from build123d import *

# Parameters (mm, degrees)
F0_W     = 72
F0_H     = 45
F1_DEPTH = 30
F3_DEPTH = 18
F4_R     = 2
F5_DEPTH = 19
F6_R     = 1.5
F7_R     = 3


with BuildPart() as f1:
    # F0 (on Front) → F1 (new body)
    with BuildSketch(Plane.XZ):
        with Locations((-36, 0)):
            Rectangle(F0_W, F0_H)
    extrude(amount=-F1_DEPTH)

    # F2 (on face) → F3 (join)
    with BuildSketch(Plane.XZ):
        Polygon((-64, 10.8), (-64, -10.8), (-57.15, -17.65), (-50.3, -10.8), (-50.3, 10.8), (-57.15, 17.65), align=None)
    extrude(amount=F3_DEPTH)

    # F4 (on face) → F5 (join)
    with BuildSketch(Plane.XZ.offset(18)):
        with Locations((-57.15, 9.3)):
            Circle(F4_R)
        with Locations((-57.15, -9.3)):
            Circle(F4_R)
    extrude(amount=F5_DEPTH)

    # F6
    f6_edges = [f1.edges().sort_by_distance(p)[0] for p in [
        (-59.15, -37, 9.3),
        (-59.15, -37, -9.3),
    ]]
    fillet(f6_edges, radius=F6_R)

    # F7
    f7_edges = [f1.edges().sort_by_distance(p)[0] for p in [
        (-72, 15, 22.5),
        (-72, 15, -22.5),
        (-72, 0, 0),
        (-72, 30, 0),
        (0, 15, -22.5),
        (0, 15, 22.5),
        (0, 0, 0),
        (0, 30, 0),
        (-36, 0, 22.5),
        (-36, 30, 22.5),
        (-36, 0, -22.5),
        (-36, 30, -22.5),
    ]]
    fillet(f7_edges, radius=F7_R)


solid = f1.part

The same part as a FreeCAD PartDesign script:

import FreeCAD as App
import Part
import Sketcher

V = App.Vector
Q = App.Units.Quantity


def edges_at(feature, points):
    """Names of the edges that pass closest to the given points."""
    edges = feature.Shape.Edges
    near = lambda p: min(range(len(edges)), key=lambda i: edges[i].distToShape(Part.Vertex(*p))[0])
    return sorted({f"Edge{near(p) + 1}" for p in points})


def add_polygon(sketch, points):
    """Adds a closed chain of lines whose ends are joined by coincident constraints."""
    first, n = sketch.GeometryCount, len(points)
    for a, b in zip(points, points[1:] + points[:1]):
        sketch.addGeometry(Part.LineSegment(App.Vector(*a, 0), App.Vector(*b, 0)), False)
    for i in range(n):
        sketch.addConstraint(Sketcher.Constraint("Coincident", first + i, 2, first + (i + 1) % n, 1))

doc = App.newDocument("Part")
body = doc.addObject("PartDesign::Body", "Body")

# Sketch on XZ plane
sketch1 = body.newObject("Sketcher::SketchObject", "Sketch")
sketch1.AttachmentSupport = (doc.getObject("XZ_Plane"), [""])
sketch1.MapMode = "FlatFace"
add_polygon(sketch1, [(-72, 22.5), (-72, -22.5), (0, -22.5), (0, 22.5)])  # lines 0-3
sketch1.addConstraint([
    Sketcher.Constraint("Vertical", 0),
    Sketcher.Constraint("Horizontal", 1),
    Sketcher.Constraint("Vertical", 2),
    Sketcher.Constraint("Horizontal", 3),
    Sketcher.Constraint("Symmetric", 1, 2, 2, 2, -1, 1),
    Sketcher.Constraint("DistanceX", 1, 1, 1, 2, Q("72 mm")),
    Sketcher.Constraint("DistanceY", 0, 2, 0, 1, Q("45 mm")),
])
pad1 = body.newObject("PartDesign::Pad", "Pad")
pad1.Profile = sketch1
pad1.Length = 30
pad1.Reversed = True

# Sketch on XZ plane
sketch2 = body.newObject("Sketcher::SketchObject", "Sketch001")
sketch2.AttachmentSupport = (doc.getObject("XZ_Plane"), [""])
sketch2.MapMode = "FlatFace"
add_polygon(sketch2, [(-64, 10.8), (-64, -10.8), (-57.15, -17.65), (-50.3, -10.8), (-50.3, 10.8), (-57.15, 17.65)])  # lines 0-5
sketch2.addConstraint([
    Sketcher.Constraint("Vertical", 0),
    Sketcher.Constraint("Vertical", 3),
    Sketcher.Constraint("Symmetric", 1, 2, 4, 2, -1),
    Sketcher.Constraint("Perpendicular", 1, 2),
    Sketcher.Constraint("Perpendicular", 2, 4),
    Sketcher.Constraint("Perpendicular", 4, 5),
    Sketcher.Constraint("Horizontal", 0, 2, 2, 2),
    Sketcher.Constraint("Horizontal", 3, 2, 5, 2),
    Sketcher.Constraint("DistanceY", 0, 2, 0, 1, Q("21.6 mm")),
    Sketcher.Constraint("DistanceX", 0, 2, -1, 1, Q("64 mm")),
    Sketcher.Constraint("DistanceX", 2, 2, -1, 1, Q("50.3 mm")),
])
pad2 = body.newObject("PartDesign::Pad", "Pad001")
pad2.Profile = sketch2
pad2.Length = 18

# Sketch on XZ plane
sketch3 = body.newObject("Sketcher::SketchObject", "Sketch002")
sketch3.AttachmentSupport = (doc.getObject("XZ_Plane"), [""])
sketch3.MapMode = "FlatFace"
sketch3.AttachmentOffset = App.Placement(V(0, 0, 18), App.Rotation())
sketch3.addGeometry([
    Part.Circle(V(-57.15, 9.3, 0), V(0, 0, 1), 2),
    Part.Circle(V(-57.15, -9.3, 0), V(0, 0, 1), 2),
], False)
sketch3.addConstraint([
    Sketcher.Constraint("Equal", 0, 1),
    Sketcher.Constraint("Symmetric", 0, 3, 1, 3, -1),
    Sketcher.Constraint("Diameter", 0, Q("4 mm")),
    Sketcher.Constraint("DistanceY", -1, 1, 0, 3, Q("9.3 mm")),
    Sketcher.Constraint("DistanceX", 0, 3, -1, 1, Q("57.15 mm")),
])
pad3 = body.newObject("PartDesign::Pad", "Pad002")
pad3.Profile = sketch3
pad3.Length = 19
doc.recompute()

fillet = body.newObject("PartDesign::Fillet", "Fillet")
fillet.Base = (pad3, edges_at(pad3, [(-59.15, -37, 9.3), (-59.15, -37, -9.3)]))
fillet.Radius = 1.5
doc.recompute()

fillet2 = body.newObject("PartDesign::Fillet", "Fillet001")
fillet2.Base = (fillet, edges_at(fillet, [
    (-72, 15, 22.5),
    (-72, 15, -22.5),
    (-72, 0, 0),
    (-72, 30, 0),
    (0, 15, -22.5),
    (0, 15, 22.5),
    (0, 0, 0),
    (0, 30, 0),
    (-36, 0, 22.5),
    (-36, 30, 22.5),
    (-36, 0, -22.5),
    (-36, 30, -22.5),
]))
fillet2.Radius = 3

doc.recompute()
